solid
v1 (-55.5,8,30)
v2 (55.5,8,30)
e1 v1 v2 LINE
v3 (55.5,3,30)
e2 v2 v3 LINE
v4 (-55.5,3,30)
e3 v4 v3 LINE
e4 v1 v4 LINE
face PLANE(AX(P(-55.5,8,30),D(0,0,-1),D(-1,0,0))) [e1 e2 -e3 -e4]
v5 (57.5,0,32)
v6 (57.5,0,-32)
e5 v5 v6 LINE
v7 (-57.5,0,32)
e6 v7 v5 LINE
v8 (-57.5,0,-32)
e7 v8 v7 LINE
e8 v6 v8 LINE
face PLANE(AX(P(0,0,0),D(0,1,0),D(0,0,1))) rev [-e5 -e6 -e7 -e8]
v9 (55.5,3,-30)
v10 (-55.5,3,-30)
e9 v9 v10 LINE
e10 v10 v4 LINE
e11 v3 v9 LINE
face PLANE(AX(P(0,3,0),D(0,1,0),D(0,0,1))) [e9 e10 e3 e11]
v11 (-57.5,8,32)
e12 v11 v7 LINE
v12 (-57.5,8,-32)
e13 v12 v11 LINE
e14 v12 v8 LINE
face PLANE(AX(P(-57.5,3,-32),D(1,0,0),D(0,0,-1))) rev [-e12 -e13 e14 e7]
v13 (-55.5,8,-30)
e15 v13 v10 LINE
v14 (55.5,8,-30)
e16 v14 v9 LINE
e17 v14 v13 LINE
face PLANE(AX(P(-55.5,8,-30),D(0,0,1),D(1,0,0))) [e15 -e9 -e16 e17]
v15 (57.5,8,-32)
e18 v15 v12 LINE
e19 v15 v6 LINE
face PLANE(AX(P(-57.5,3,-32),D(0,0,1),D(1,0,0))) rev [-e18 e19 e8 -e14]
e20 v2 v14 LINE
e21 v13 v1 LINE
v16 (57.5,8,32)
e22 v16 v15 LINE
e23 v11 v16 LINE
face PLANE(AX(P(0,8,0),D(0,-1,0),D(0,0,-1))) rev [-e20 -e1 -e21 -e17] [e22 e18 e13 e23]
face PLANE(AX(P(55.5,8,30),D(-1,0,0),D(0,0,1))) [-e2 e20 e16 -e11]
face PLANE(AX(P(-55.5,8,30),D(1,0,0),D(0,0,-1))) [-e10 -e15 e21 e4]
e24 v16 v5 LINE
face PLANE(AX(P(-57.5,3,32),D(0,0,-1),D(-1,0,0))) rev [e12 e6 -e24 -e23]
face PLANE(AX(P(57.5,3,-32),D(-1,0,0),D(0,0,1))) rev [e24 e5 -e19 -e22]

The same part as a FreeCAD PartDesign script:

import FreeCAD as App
import Part
import Sketcher

V = App.Vector


def add_polygon(sketch, points):
    """Adds a closed chain of lines whose ends are joined by coincident constraints."""
    first, n = sketch.GeometryCount, len(points)
    for a, b in zip(points, points[1:] + points[:1]):
        sketch.addGeometry(Part.LineSegment(App.Vector(*a, 0), App.Vector(*b, 0)), False)
    for i in range(n):
        sketch.addConstraint(Sketcher.Constraint("Coincident", first + i, 2, first + (i + 1) % n, 1))

doc = App.newDocument("Part")
body = doc.addObject("PartDesign::Body", "Body")

# Sketch on XZ plane
sketch1 = body.newObject("Sketcher::SketchObject", "Sketch")
sketch1.AttachmentSupport = (doc.getObject("XZ_Plane"), [""])
sketch1.MapMode = "FlatFace"
add_polygon(sketch1, [(-57.5, -32), (-57.5, 32), (57.5, 32), (57.5, -32)])  # lines 0-3
sketch1.addConstraint([
    Sketcher.Constraint("Vertical", 0),
    Sketcher.Constraint("Horizontal", 1),
    Sketcher.Constraint("Vertical", 2),
    Sketcher.Constraint("Horizontal", 3),
    Sketcher.Constraint("Symmetric", 0, 2, 2, 2, -1, 1),
    Sketcher.Constraint("DistanceX", 1, 1, 1, 2, 115.0),
    Sketcher.Constraint("DistanceY", 0, 1, 0, 2, 64.0),
])
pad1 = body.newObject("PartDesign::Pad", "Pad")
pad1.Profile = sketch1
pad1.Length = 3
pad1.Reversed = True

# Sketch on XZ plane
sketch2 = body.newObject("Sketcher::SketchObject", "Sketch001")
sketch2.AttachmentSupport = (doc.getObject("XZ_Plane"), [""])
sketch2.MapMode = "FlatFace"
sketch2.AttachmentOffset = App.Placement(V(0, 0, -3), App.Rotation())
add_polygon(sketch2, [(-57.5, -32), (-57.5, 32), (57.5, 32), (57.5, -32)])  # lines 0-3
add_polygon(sketch2, [(55.5, 30), (-55.5, 30), (-55.5, -30), (55.5, -30)])  # lines 4-7
sketch2.addConstraint([
    Sketcher.Constraint("Vertical", 0),
    Sketcher.Constraint("Horizontal", 1),
    Sketcher.Constraint("Vertical", 2),
    Sketcher.Constraint("Horizontal", 3),
    Sketcher.Constraint("Horizontal", 4),
    Sketcher.Constraint("Vertical", 5),
    Sketcher.Constraint("Horizontal", 6),
    Sketcher.Constraint("Vertical", 7),
    Sketcher.Constraint("Symmetric", 0, 2, 2, 2, -1, 1),
    Sketcher.Constraint("Symmetric", 4, 2, 6, 2, -1, 1),
    Sketcher.Constraint("DistanceX", 1, 1, 1, 2, 115.0),
    Sketcher.Constraint("DistanceX", 4, 2, 4, 1, 111.0),
    Sketcher.Constraint("DistanceY", 0, 1, 0, 2, 64.0),
    Sketcher.Constraint("DistanceY", 5, 2, 5, 1, 60.0),
])
pad2 = body.newObject("PartDesign::Pad", "Pad001")
pad2.Profile = sketch2
pad2.Length = 5
pad2.Reversed = True

doc.recompute()
